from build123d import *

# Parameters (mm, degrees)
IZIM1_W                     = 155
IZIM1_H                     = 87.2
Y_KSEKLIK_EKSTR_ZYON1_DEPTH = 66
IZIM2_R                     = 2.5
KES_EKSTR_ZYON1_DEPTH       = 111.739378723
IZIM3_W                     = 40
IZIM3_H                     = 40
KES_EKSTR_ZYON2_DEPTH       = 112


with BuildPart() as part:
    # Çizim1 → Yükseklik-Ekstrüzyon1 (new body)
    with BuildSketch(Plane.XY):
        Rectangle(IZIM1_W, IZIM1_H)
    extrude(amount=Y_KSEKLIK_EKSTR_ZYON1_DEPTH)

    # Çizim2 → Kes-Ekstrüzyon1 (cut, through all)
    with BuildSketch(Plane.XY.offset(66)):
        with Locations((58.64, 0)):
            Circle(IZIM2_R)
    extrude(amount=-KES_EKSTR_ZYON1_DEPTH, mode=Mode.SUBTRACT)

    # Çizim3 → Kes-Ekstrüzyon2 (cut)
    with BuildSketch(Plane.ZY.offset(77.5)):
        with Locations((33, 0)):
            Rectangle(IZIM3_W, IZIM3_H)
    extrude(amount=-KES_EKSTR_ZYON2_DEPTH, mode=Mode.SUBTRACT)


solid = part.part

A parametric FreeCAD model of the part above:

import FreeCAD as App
import Part
import Sketcher
from FreeCAD import Vector

doc = App.newDocument("Part")
body = doc.addObject("PartDesign::Body", "Body")

sketch1 = body.newObject("Sketcher::SketchObject", "Sketch")
sketch1.AttachmentSupport = (doc.getObject("XY_Plane"), [""])
sketch1.MapMode = "FlatFace"
sketch1.addGeometry([
    Part.LineSegment(Vector(-77.5, 43.6, 0), Vector(-77.5, -43.6, 0)),
    Part.LineSegment(Vector(-77.5, -43.6, 0), Vector(77.5, -43.6, 0)),
    Part.LineSegment(Vector(77.5, -43.6, 0), Vector(77.5, 43.6, 0)),
    Part.LineSegment(Vector(77.5, 43.6, 0), Vector(-77.5, 43.6, 0)),
], False)
sketch1.addConstraint([
    Sketcher.Constraint("Coincident", 0, 2, 1, 1),
    Sketcher.Constraint("Coincident", 1, 2, 2, 1),
    Sketcher.Constraint("Coincident", 2, 2, 3, 1),
    Sketcher.Constraint("Coincident", 3, 2, 0, 1),
    Sketcher.Constraint("Vertical", 0),
    Sketcher.Constraint("Horizontal", 1),
    Sketcher.Constraint("Vertical", 2),
    Sketcher.Constraint("Horizontal", 3),
    Sketcher.Constraint("Symmetric", 0, 2, 2, 2, -1, 1),
    Sketcher.Constraint("DistanceX", 1, 1, 1, 2, 155.0),
    Sketcher.Constraint("DistanceY", 0, 2, 0, 1, 87.2),
])
pad1 = body.newObject("PartDesign::Pad", "Pad")
pad1.Profile = sketch1
pad1.Length = 66

sketch2 = body.newObject("Sketcher::SketchObject", "Sketch001")
sketch2.AttachmentSupport = (doc.getObject("XY_Plane"), [""])
sketch2.MapMode = "FlatFace"
sketch2.AttachmentOffset = App.Placement(Vector(0, 0, 66), App.Rotation())
sketch2.addGeometry(Part.Circle(Vector(58.64, 0, 0), Vector(0, 0, 1), 2.5), False)
sketch2.addConstraint([
    Sketcher.Constraint("PointOnObject", 0, 3, -1),
    Sketcher.Constraint("Diameter", 0, 5.0),
    Sketcher.Constraint("DistanceX", -1, 1, 0, 3, 58.64),
])
pocket1 = body.newObject("PartDesign::Pocket", "Pocket")
pocket1.Profile = sketch2
pocket1.Type = "ThroughAll"

sketch3 = body.newObject("Sketcher::SketchObject", "Sketch002")
sketch3.AttachmentSupport = (doc.getObject("YZ_Plane"), [""])
sketch3.MapMode = "FlatFace"
sketch3.AttachmentOffset = App.Placement(Vector(0, 0, -77.5), App.Rotation())
sketch3.addGeometry([
    Part.LineSegment(Vector(20, 13, 0), Vector(-20, 13, 0)),
    Part.LineSegment(Vector(-20, 13, 0), Vector(-20, 53, 0)),
    Part.LineSegment(Vector(-20, 53, 0), Vector(20, 53, 0)),
    Part.LineSegment(Vector(20, 53, 0), Vector(20, 13, 0)),
], False)
sketch3.addConstraint([
    Sketcher.Constraint("Coincident", 0, 2, 1, 1),
    Sketcher.Constraint("Coincident", 1, 2, 2, 1),
    Sketcher.Constraint("Coincident", 2, 2, 3, 1),
    Sketcher.Constraint("Coincident", 3, 2, 0, 1),
    Sketcher.Constraint("Horizontal", 0),
    Sketcher.Constraint("Vertical", 1),
    Sketcher.Constraint("Horizontal", 2),
    Sketcher.Constraint("Vertical", 3),
    Sketcher.Constraint("Equal", 2, 1),
    Sketcher.Constraint("DistanceX", 0, 2, 0, 1, 40.0),
    Sketcher.Constraint("DistanceX", 0, 2, -1, 1, 20.0),
    Sketcher.Constraint("DistanceY", -1, 1, 0, 2, 13.0),
])
pocket2 = body.newObject("PartDesign::Pocket", "Pocket001")
pocket2.Profile = sketch3
pocket2.Length = 112
pocket2.Reversed = True

doc.recompute()
